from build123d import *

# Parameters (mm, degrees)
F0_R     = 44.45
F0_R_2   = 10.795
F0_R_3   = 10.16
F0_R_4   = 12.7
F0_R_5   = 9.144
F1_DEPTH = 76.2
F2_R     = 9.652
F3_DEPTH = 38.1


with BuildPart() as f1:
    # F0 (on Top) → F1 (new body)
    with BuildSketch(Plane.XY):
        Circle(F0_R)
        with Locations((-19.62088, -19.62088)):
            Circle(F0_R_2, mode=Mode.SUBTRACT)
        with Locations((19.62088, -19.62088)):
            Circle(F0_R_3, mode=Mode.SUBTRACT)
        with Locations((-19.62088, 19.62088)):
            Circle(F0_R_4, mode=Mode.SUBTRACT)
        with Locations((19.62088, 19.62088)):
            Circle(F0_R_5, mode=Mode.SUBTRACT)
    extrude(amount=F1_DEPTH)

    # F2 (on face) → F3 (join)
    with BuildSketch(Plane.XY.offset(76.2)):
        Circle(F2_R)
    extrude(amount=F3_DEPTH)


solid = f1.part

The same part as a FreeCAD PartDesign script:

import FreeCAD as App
import Part
import Sketcher

V = App.Vector
Q = App.Units.Quantity

doc = App.newDocument("Part")
body = doc.addObject("PartDesign::Body", "Body")

# Sketch on XY plane
sketch1 = body.newObject("Sketcher::SketchObject", "Sketch")
sketch1.AttachmentSupport = (doc.getObject("XY_Plane"), [""])
sketch1.MapMode = "FlatFace"
sketch1.addGeometry([
    Part.Circle(V(0, 0, 0), V(0, 0, 1), 44),  # 0
    Part.Circle(V(-20, -20, 0), V(0, 0, 1), 11),  # 1
    Part.Circle(V(20, -20, 0), V(0, 0, 1), 10),  # 2
    Part.Circle(V(-20, 20, 0), V(0, 0, 1), 13),  # 3
    Part.Circle(V(20, 20, 0), V(0, 0, 1), 9),  # 4
], False)
sketch1.addConstraint([
    Sketcher.Constraint("Coincident", 0, 3, -1, 1),
    Sketcher.Constraint("Symmetric", 2, 3, 3, 3, -1, 1),
    Sketcher.Constraint("Symmetric", 1, 3, 4, 3, -1, 1),
    Sketcher.Constraint("Symmetric", 1, 3, 2, 3, -2),
    Sketcher.Constraint("Diameter", 3, Q("1 in")),
    Sketcher.Constraint("Diameter", 0, Q("3.5 in")),
    Sketcher.Constraint("Diameter", 2, Q("0.8 in")),
    Sketcher.Constraint("Diameter", 1, Q("0.85 in")),
    Sketcher.Constraint("Diameter", 4, Q("0.72 in")),
    Sketcher.Constraint("DistanceX", 1, 3, -1, 1, Q("19.62088 mm")),
    Sketcher.Constraint("DistanceY", 1, 3, -1, 1, Q("19.62088 mm")),
])
pad1 = body.newObject("PartDesign::Pad", "Pad")
pad1.Profile = sketch1
pad1.Length = Q("3 in")

# Sketch on XY plane
sketch2 = body.newObject("Sketcher::SketchObject", "Sketch001")
sketch2.AttachmentSupport = (doc.getObject("XY_Plane"), [""])
sketch2.MapMode = "FlatFace"
sketch2.AttachmentOffset = App.Placement(V(0, 0, 3 * 25.4), App.Rotation())
sketch2.addGeometry(Part.Circle(V(0, 0, 0), V(0, 0, 1), 10), False)
sketch2.addConstraint([
    Sketcher.Constraint("Coincident", 0, 3, -1, 1),
    Sketcher.Constraint("Diameter", 0, Q("0.76 in")),
])
pad2 = body.newObject("PartDesign::Pad", "Pad001")
pad2.Profile = sketch2
pad2.Length = Q("1.5 in")

doc.recompute()
